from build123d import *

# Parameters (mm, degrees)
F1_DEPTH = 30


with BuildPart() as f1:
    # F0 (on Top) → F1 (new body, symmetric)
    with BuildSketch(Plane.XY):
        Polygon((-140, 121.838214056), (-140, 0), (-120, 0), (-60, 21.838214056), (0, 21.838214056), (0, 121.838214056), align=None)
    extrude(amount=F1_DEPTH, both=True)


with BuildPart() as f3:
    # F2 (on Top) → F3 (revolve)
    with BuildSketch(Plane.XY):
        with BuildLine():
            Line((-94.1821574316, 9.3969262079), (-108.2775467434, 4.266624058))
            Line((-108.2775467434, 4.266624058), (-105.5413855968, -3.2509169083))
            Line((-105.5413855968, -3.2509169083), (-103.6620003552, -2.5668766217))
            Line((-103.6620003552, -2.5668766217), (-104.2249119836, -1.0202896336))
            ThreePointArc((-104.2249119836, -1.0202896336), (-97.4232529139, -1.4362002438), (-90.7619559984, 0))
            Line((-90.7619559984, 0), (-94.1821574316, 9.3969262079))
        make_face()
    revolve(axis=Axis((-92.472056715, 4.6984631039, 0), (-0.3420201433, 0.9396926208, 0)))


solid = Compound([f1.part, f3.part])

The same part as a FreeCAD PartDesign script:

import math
import FreeCAD as App
import Part
import Sketcher
Q = App.Units.Quantity

doc = App.newDocument("Part")
params = doc.addObject("Spreadsheet::Sheet", "Params")
for row, (alias, value) in enumerate([
    ("sketch1_width", "20 mm"),
    ("sketch1_width2", "60 mm"),
    ("sketch1_width3", "140 mm"),
    ("sketch1_height", "100 mm"),
    ("pad1_length", "60 mm"),
    ("sketch2_radius", "25 mm"),
    ("sketch2_length", "15 mm"),
    ("sketch2_length2", "8 mm"),
    ("sketch2_length3", "2 mm"),
    ("sketch2_length4", "10 mm"),
    ("revolution_angle", "360 deg"),
], start=1):
    params.set(f"A{row}", alias)
    params.set(f"B{row}", "=" + value)
    params.setAlias(f"B{row}", alias)

body = doc.addObject("PartDesign::Body", "Body")

# Sketch on XY plane
sketch1 = doc.addObject("Sketcher::SketchObject", "Sketch")
body.addObject(sketch1)
sketch1.AttachmentSupport = (doc.XY_Plane, [""])
sketch1.MapMode = "FlatFace"
sketch1.addGeometry([
    Part.LineSegment(App.Vector(-140, 122, 0), App.Vector(-140, 0, 0)),  # 0
    Part.LineSegment(App.Vector(-140, 0, 0), App.Vector(-120, 0, 0)),  # 1
    Part.LineSegment(App.Vector(-120, 0, 0), App.Vector(-60, 22, 0)),  # 2
    Part.LineSegment(App.Vector(-60, 22, 0), App.Vector(0, 22, 0)),  # 3
    Part.LineSegment(App.Vector(0, 22, 0), App.Vector(0, 122, 0)),  # 4
    Part.LineSegment(App.Vector(0, 122, 0), App.Vector(-140, 122, 0)),  # 5
], False)
sketch1.addConstraint([
    Sketcher.Constraint("Coincident", 0, 2, 1, 1),
    Sketcher.Constraint("Coincident", 1, 2, 2, 1),
    Sketcher.Constraint("Coincident", 2, 2, 3, 1),
    Sketcher.Constraint("Coincident", 3, 2, 4, 1),
    Sketcher.Constraint("Coincident", 4, 2, 5, 1),
    Sketcher.Constraint("Coincident", 5, 2, 0, 1),
    Sketcher.Constraint("Vertical", 0),
    Sketcher.Constraint("Horizontal", 1),
    Sketcher.Constraint("Horizontal", 3),
    Sketcher.Constraint("Vertical", 4),
    Sketcher.Constraint("Horizontal", 5),
    Sketcher.Constraint("PointOnObject", 0, 2, -1),
    Sketcher.Constraint("PointOnObject", 3, 2, -2),
    Sketcher.Constraint("DistanceX", 1, 1, 1, 2, 20.0),
    Sketcher.Constraint("DistanceX", 3, 1, 3, 2, 60.0),
    Sketcher.Constraint("DistanceX", 5, 2, 5, 1, 140.0),
    Sketcher.Constraint("DistanceY", 4, 1, 4, 2, 100.0),
    Sketcher.Constraint("Angle", 2, Q("20 deg")),
])
sketch1.setExpression("Constraints[13]", "Params.sketch1_width")
sketch1.setExpression("Constraints[14]", "Params.sketch1_width2")
sketch1.setExpression("Constraints[15]", "Params.sketch1_width3")
sketch1.setExpression("Constraints[16]", "Params.sketch1_height")
pad1 = doc.addObject("PartDesign::Pad", "Pad")
body.addObject(pad1)
pad1.Profile = sketch1
pad1.setExpression("Length", "Params.pad1_length")
pad1.Midplane = True
body2 = doc.addObject("PartDesign::Body", "Body001")

# Sketch on XY plane
sketch2 = doc.addObject("Sketcher::SketchObject", "Sketch001")
body2.addObject(sketch2)
sketch2.AttachmentSupport = (doc.getObject("XY_Plane001"), [""])
sketch2.MapMode = "FlatFace"
sketch2.addGeometry([
    Part.LineSegment(App.Vector(-94.2, 9.4, 0), App.Vector(-108.3, 4.3, 0)),  # 0
    Part.LineSegment(App.Vector(-108.3, 4.3, 0), App.Vector(-105.5, -3.3, 0)),  # 1
    Part.LineSegment(App.Vector(-105.5, -3.3, 0), App.Vector(-103.7, -2.6, 0)),  # 2
    Part.LineSegment(App.Vector(-103.7, -2.6, 0), App.Vector(-104.2, -1, 0)),  # 3
    Part.ArcOfCircle(Part.Circle(App.Vector(-99.3, 23.5, 0), App.Vector(0, 0, 1), 25), math.radians(-101), math.radians(-70)),  # 4
    Part.LineSegment(App.Vector(-90.8, 0, 0), App.Vector(-94.2, 9.4, 0)),  # 5
], False)
sketch2.addGeometry(Part.LineSegment(App.Vector(-90.8, 0, 0), App.Vector(-99.3, 23.5, 0)), True)  # axis
sketch2.addConstraint([
    Sketcher.Constraint("Coincident", 0, 2, 1, 1),
    Sketcher.Constraint("Coincident", 1, 2, 2, 1),
    Sketcher.Constraint("Coincident", 2, 2, 3, 1),
    Sketcher.Constraint("Coincident", 3, 2, 4, 1),
    Sketcher.Constraint("Coincident", 4, 2, 5, 1),
    Sketcher.Constraint("Coincident", 5, 2, 0, 1),
    Sketcher.Constraint("Coincident", 6, 1, 4, 2),
    Sketcher.Constraint("Coincident", 6, 2, 4, 3),
    Sketcher.Constraint("PointOnObject", 4, 2, -1),
    Sketcher.Constraint("Perpendicular", 0, 1),
    Sketcher.Constraint("Perpendicular", 1, 2),
    Sketcher.Constraint("Perpendicular", 2, 3),
    Sketcher.Constraint("Parallel", 3, 5),
    Sketcher.Constraint("Parallel", 5, 6),
    Sketcher.Constraint("Radius", 4, 25.0),
    Sketcher.Constraint("Angle", 0, Q("-160 deg")),
    Sketcher.Constraint("Distance", 0, 15.0),
    Sketcher.Constraint("Distance", 1, 8.0),
    Sketcher.Constraint("Distance", 2, 2.0),
    Sketcher.Constraint("Distance", 5, 10.0),
    Sketcher.Constraint("DistanceX", 2, 2, -1, 1, 103.662),
])
sketch2.setExpression("Constraints[14]", "Params.sketch2_radius")
sketch2.setExpression("Constraints[16]", "Params.sketch2_length")
sketch2.setExpression("Constraints[17]", "Params.sketch2_length2")
sketch2.setExpression("Constraints[18]", "Params.sketch2_length3")
sketch2.setExpression("Constraints[19]", "Params.sketch2_length4")
revolution = doc.addObject("PartDesign::Revolution", "Revolution")
body2.addObject(revolution)
revolution.Profile = sketch2
revolution.ReferenceAxis = (sketch2, ["Axis0"])
revolution.setExpression("Angle", "Params.revolution_angle")

doc.recompute()
